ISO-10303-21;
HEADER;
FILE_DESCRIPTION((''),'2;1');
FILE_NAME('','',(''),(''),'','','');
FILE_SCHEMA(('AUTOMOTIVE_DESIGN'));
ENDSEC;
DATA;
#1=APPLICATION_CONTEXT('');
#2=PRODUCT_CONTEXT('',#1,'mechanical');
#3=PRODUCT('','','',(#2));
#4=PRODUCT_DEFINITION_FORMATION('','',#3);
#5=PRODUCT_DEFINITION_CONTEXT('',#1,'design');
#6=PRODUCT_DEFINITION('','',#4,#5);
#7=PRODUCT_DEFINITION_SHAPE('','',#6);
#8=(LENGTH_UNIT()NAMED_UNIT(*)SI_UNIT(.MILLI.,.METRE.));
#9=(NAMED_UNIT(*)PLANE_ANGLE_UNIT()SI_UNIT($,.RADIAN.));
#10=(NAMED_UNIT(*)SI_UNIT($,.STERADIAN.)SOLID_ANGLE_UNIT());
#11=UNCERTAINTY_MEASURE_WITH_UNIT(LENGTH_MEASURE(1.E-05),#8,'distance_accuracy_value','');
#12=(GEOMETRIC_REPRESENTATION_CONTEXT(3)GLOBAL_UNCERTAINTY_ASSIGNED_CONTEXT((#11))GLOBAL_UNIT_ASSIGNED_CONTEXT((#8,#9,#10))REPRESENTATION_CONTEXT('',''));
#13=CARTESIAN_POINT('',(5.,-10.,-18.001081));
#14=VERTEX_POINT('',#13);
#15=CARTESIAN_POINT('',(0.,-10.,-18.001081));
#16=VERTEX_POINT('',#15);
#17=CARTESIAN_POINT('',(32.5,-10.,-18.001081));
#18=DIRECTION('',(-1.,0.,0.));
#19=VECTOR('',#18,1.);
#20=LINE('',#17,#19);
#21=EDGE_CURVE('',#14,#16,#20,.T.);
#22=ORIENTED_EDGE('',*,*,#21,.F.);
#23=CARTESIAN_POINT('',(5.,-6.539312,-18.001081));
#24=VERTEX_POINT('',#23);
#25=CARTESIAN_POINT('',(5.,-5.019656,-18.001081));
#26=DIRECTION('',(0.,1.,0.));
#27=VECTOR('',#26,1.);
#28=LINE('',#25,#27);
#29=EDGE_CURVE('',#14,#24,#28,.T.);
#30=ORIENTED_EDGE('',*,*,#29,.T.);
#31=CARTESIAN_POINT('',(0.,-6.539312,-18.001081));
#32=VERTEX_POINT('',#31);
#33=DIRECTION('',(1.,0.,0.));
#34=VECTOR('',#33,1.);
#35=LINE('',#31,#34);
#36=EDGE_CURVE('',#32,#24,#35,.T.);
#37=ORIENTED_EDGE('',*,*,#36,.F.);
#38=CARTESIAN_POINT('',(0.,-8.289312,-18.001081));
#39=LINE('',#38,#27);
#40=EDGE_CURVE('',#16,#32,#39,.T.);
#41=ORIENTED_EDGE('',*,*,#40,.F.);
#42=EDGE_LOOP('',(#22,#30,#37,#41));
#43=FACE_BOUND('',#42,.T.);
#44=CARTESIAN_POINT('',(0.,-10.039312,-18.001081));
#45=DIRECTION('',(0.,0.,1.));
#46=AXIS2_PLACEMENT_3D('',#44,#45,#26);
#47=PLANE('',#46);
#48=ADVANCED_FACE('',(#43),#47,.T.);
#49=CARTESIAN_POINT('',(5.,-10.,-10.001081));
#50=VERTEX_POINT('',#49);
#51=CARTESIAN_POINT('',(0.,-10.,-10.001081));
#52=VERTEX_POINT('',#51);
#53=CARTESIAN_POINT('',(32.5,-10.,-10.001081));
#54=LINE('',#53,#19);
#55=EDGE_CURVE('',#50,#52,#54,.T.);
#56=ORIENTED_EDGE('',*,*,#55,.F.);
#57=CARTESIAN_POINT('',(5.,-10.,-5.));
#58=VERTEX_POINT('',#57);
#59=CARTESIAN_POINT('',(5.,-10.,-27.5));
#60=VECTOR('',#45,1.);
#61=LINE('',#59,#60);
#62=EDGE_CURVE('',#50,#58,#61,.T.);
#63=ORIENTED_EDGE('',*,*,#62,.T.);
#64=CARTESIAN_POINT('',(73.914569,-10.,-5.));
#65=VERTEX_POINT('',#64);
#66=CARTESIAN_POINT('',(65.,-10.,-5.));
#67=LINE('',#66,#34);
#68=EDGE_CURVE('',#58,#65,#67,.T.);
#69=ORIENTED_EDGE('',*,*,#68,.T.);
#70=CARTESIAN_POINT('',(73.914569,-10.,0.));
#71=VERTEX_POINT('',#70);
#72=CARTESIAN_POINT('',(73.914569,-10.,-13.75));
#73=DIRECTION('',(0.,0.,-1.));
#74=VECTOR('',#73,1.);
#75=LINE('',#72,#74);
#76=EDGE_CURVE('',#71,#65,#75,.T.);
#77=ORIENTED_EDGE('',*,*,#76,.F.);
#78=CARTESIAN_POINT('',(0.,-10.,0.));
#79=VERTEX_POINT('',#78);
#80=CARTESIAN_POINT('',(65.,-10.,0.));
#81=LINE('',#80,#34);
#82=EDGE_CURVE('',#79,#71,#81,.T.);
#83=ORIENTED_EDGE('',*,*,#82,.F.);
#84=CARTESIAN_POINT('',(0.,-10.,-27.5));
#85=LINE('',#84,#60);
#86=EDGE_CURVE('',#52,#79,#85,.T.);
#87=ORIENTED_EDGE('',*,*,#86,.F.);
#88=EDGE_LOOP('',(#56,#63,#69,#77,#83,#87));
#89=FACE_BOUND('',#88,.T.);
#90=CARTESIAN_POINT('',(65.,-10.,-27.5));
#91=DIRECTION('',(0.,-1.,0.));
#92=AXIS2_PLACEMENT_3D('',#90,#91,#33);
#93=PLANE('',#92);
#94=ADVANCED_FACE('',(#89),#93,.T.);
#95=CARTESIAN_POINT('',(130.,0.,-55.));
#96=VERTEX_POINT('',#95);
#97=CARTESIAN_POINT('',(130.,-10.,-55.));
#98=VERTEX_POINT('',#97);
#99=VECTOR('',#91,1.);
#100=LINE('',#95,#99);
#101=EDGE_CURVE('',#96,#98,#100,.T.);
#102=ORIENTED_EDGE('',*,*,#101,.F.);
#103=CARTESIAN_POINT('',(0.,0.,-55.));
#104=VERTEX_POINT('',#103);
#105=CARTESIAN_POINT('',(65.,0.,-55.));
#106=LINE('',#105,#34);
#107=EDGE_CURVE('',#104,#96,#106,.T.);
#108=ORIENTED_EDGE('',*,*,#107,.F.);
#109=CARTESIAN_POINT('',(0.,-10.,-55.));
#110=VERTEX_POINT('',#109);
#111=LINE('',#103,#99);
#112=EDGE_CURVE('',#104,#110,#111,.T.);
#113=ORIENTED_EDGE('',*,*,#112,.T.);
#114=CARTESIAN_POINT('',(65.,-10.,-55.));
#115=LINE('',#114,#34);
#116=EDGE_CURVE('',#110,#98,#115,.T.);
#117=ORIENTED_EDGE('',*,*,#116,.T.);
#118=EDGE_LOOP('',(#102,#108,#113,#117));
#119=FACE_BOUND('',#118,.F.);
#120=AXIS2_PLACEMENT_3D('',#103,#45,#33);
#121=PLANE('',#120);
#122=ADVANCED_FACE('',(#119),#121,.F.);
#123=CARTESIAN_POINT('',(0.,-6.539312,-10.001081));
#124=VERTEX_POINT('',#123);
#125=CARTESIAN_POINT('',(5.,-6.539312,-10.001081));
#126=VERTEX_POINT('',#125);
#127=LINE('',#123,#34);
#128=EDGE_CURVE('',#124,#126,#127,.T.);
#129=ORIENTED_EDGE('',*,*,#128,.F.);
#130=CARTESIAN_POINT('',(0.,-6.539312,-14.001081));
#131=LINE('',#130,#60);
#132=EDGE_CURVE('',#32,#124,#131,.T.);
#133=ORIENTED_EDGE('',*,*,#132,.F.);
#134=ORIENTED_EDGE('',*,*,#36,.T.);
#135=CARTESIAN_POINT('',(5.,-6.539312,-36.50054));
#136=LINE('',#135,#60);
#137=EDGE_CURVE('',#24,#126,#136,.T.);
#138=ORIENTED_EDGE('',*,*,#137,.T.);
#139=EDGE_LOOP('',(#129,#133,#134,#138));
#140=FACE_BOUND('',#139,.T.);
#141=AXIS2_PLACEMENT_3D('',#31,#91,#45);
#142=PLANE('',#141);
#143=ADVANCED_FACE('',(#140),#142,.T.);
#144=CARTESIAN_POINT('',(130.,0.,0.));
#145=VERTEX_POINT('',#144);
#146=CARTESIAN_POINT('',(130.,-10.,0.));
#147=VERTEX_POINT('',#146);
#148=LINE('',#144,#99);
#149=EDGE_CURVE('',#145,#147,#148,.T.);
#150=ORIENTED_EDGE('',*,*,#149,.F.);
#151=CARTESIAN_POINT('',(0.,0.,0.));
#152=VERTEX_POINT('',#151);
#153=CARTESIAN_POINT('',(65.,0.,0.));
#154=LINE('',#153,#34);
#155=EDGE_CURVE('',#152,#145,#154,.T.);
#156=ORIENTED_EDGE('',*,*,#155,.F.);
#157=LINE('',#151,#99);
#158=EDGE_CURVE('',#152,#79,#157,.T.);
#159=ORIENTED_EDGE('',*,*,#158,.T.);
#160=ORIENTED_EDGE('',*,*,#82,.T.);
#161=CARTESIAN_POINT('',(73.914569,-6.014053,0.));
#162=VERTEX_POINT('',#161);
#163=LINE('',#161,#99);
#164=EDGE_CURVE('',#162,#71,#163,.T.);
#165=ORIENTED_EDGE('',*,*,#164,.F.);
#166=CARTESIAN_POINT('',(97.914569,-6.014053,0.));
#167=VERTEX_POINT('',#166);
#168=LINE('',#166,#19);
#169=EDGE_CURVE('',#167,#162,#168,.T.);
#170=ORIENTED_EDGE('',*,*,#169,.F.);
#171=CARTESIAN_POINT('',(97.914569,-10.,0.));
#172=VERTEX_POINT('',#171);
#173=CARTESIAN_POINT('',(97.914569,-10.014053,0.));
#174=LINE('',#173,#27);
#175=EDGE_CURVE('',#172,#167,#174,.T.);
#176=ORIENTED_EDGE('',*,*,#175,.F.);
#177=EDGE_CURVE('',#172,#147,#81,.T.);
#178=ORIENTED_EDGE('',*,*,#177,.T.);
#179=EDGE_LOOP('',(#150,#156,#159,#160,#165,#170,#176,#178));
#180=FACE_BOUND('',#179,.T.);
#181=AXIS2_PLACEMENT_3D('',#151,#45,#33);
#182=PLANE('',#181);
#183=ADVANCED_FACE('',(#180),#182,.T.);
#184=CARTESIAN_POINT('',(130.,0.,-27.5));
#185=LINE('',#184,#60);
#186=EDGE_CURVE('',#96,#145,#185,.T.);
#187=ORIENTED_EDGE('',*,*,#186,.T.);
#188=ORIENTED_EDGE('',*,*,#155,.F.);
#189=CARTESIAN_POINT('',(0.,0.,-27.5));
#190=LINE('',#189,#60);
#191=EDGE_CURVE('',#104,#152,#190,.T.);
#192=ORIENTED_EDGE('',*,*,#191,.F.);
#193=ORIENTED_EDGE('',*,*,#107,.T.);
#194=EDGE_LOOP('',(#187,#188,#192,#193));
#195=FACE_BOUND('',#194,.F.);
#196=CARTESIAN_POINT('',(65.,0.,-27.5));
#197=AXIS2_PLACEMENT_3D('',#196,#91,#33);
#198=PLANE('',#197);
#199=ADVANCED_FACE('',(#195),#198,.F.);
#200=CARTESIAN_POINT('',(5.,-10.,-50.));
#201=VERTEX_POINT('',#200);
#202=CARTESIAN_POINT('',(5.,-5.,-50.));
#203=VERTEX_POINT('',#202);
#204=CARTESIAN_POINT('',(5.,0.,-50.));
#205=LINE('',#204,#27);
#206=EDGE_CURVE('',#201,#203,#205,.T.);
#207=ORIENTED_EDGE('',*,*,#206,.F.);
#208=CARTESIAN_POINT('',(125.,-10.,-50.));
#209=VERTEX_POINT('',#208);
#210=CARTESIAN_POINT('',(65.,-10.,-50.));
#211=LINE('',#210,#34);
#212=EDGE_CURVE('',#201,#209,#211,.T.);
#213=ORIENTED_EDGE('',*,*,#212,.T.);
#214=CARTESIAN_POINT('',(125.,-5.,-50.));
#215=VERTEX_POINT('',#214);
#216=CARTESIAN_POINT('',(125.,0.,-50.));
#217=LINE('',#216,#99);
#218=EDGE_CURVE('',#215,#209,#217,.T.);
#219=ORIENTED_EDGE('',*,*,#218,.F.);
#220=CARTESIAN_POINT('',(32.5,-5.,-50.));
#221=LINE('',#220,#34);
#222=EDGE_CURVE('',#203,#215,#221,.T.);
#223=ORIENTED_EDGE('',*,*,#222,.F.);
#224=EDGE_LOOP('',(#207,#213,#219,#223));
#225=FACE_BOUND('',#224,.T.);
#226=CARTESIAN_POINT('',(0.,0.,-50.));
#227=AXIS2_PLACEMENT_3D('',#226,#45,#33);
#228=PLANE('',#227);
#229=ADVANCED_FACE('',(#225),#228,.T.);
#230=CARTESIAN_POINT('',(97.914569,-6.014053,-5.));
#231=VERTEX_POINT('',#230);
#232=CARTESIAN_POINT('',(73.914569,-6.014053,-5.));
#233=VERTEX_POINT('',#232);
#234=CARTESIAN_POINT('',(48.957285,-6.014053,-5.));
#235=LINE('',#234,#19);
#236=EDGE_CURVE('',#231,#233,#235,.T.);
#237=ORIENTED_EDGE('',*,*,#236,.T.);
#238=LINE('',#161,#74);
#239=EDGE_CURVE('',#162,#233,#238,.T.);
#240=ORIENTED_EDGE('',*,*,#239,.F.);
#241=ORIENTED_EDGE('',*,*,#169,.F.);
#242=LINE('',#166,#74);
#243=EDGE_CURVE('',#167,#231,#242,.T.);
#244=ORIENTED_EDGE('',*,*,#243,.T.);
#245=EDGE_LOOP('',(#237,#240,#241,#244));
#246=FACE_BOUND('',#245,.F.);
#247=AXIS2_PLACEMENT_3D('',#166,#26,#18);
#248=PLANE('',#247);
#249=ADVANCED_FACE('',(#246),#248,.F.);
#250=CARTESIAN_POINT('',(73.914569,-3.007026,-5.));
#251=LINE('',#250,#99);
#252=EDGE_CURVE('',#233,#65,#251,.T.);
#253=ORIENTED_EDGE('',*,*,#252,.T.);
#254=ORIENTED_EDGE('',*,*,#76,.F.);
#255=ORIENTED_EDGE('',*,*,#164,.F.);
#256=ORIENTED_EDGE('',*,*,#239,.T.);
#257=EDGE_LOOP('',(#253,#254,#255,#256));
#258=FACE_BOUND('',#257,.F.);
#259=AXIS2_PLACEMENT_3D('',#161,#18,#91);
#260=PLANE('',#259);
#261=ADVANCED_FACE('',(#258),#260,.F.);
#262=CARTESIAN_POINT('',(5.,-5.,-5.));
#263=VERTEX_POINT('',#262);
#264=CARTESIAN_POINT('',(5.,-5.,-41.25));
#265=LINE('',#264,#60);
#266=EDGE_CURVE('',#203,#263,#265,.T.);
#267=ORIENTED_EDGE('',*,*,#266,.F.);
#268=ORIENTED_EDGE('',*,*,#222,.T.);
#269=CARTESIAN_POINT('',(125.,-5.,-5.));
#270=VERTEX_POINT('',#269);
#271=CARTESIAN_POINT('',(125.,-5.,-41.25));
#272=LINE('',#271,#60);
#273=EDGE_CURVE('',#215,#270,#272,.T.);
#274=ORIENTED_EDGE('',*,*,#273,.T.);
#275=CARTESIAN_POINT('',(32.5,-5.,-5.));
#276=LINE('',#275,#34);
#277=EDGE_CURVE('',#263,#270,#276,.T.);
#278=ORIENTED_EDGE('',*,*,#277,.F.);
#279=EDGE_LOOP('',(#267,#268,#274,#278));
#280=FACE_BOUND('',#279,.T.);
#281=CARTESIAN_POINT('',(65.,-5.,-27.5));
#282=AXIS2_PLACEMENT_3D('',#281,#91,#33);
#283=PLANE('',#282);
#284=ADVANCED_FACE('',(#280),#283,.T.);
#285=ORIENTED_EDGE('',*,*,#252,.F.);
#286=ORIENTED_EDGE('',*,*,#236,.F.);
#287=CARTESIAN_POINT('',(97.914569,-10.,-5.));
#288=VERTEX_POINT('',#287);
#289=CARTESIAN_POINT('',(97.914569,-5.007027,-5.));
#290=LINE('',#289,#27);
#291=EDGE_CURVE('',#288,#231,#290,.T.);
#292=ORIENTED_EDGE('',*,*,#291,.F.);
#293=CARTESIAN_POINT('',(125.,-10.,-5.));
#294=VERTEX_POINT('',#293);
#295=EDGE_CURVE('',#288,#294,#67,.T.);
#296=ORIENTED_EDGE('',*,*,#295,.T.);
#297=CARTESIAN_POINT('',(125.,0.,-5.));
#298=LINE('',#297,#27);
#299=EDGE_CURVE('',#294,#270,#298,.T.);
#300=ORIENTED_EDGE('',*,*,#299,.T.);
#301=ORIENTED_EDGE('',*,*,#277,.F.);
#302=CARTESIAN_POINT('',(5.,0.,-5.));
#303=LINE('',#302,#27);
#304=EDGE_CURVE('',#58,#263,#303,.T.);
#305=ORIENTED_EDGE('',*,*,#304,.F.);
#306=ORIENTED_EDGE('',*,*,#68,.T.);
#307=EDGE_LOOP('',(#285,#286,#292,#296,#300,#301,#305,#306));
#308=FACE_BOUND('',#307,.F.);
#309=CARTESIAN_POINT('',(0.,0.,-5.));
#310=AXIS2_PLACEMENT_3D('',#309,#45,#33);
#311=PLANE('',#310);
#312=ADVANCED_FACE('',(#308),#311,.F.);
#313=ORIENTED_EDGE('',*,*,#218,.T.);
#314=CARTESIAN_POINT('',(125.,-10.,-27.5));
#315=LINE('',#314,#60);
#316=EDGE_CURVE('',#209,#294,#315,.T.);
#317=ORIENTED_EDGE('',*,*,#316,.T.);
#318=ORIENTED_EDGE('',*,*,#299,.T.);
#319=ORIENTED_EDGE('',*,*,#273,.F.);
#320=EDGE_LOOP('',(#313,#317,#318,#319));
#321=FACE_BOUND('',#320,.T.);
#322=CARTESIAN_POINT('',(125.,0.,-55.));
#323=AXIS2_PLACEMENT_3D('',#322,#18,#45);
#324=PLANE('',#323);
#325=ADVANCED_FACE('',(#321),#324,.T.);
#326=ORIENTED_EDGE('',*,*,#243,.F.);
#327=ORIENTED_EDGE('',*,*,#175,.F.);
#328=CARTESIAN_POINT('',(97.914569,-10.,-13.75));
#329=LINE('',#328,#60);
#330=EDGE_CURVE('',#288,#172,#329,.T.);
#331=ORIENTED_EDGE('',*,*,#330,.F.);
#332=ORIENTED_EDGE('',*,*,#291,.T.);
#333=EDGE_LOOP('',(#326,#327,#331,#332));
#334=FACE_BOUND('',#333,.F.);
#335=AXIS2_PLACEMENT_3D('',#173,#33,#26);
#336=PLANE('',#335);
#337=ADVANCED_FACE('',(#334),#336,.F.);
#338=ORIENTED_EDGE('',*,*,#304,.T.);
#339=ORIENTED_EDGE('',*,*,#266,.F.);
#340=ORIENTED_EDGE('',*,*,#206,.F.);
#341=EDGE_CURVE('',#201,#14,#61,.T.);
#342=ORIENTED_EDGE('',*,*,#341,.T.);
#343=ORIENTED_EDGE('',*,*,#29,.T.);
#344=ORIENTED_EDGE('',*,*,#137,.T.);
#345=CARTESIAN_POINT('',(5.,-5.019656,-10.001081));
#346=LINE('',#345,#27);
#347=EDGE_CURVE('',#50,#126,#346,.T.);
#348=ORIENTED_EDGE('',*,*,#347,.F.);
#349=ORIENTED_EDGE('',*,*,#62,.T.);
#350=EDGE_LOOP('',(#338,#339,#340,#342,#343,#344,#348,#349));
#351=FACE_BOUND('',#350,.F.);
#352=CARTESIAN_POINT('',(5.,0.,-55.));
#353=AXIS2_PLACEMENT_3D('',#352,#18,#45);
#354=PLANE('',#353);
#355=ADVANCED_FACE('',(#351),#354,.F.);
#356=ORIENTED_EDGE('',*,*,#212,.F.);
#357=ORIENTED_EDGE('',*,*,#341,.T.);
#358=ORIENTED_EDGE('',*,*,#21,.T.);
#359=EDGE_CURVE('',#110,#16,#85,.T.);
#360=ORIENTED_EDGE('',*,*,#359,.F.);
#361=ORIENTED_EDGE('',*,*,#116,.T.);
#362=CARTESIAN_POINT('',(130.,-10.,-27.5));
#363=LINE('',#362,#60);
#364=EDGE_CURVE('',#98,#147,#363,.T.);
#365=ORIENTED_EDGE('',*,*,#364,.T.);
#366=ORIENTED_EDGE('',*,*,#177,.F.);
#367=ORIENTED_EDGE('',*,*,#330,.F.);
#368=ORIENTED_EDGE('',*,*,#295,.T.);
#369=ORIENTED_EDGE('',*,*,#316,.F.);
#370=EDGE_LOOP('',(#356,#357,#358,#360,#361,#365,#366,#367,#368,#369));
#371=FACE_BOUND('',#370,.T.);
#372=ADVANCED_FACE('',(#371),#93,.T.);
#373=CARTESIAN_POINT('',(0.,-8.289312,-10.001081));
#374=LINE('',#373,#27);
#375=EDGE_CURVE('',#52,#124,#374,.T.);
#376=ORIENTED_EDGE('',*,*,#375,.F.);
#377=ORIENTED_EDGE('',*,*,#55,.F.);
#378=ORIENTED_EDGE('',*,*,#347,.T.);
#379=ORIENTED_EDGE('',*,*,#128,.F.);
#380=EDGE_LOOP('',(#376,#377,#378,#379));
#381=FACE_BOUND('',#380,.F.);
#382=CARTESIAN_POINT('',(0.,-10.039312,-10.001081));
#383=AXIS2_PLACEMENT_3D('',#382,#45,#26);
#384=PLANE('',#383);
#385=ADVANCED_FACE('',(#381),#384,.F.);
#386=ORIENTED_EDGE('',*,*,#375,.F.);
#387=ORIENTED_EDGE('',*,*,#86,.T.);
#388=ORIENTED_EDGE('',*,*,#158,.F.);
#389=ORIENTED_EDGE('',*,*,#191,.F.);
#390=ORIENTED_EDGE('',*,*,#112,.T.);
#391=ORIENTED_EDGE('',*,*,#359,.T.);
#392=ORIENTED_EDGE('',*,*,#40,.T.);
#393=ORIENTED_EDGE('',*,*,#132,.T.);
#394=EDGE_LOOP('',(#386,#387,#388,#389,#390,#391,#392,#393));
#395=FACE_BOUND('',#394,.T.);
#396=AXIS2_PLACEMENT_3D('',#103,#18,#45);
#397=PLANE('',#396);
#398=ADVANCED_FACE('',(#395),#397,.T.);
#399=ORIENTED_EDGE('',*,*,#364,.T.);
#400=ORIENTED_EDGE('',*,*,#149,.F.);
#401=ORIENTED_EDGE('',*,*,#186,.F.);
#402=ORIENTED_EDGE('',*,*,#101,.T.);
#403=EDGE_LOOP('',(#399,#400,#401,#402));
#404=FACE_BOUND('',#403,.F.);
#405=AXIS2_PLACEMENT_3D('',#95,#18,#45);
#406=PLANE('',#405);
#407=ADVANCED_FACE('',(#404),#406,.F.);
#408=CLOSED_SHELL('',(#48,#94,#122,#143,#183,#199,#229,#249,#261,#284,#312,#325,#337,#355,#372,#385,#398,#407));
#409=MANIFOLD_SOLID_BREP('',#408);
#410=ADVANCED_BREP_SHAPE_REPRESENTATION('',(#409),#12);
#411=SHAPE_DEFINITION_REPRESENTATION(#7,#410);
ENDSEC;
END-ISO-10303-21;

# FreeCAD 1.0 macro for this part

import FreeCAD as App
import Part
import Sketcher
from FreeCAD import Vector
Q = App.Units.Quantity


def faces_at(feature, points):
    """Names of the faces that lie closest to the given points."""
    faces = feature.Shape.Faces
    near = lambda p: min(range(len(faces)), key=lambda i: faces[i].distToShape(Part.Vertex(*p))[0])
    return sorted({f"Face{near(p) + 1}" for p in points})

doc = App.newDocument("Part")
body = doc.addObject("PartDesign::Body", "Body")

# Sketch on XZ plane
sketch1 = body.newObject("Sketcher::SketchObject", "Sketch")
sketch1.AttachmentSupport = (doc.getObject("XZ_Plane"), [""])
sketch1.MapMode = "FlatFace"
sketch1.addGeometry(Part.LineSegment(Vector(0, 0, 0), Vector(0, -55, 0)), False)
sketch1.addGeometry(Part.LineSegment(Vector(0, -55, 0), Vector(130, -55, 0)), False)
sketch1.addGeometry(Part.LineSegment(Vector(130, -55, 0), Vector(130, 0, 0)), False)
sketch1.addGeometry(Part.LineSegment(Vector(130, 0, 0), Vector(0, 0, 0)), False)
sketch1.addConstraint(Sketcher.Constraint("Coincident", 0, 2, 1, 1))
sketch1.addConstraint(Sketcher.Constraint("Coincident", 1, 2, 2, 1))
sketch1.addConstraint(Sketcher.Constraint("Coincident", 2, 2, 3, 1))
sketch1.addConstraint(Sketcher.Constraint("Coincident", 3, 2, 0, 1))
sketch1.addConstraint(Sketcher.Constraint("Vertical", 0))
sketch1.addConstraint(Sketcher.Constraint("Horizontal", 1))
sketch1.addConstraint(Sketcher.Constraint("Vertical", 2))
sketch1.addConstraint(Sketcher.Constraint("Horizontal", 3))
sketch1.addConstraint(Sketcher.Constraint("Coincident", 3, 2, -1, 1))
sketch1.addConstraint(Sketcher.Constraint("DistanceX", 1, 1, 1, 2, Q("130 mm")))
sketch1.addConstraint(Sketcher.Constraint("DistanceY", 0, 2, 0, 1, Q("55 mm")))
pad1 = body.newObject("PartDesign::Pad", "Pad")
pad1.Profile = sketch1
pad1.Length = 10
doc.recompute()

thickness = body.newObject("PartDesign::Thickness", "Thickness")
thickness.Base = (pad1, faces_at(pad1, [(65, -10, -27.5)]))
thickness.Value = 5
thickness.Reversed = True
thickness.Join = "Arc"

# Sketch on XY plane
sketch2 = body.newObject("Sketcher::SketchObject", "Sketch001")
sketch2.AttachmentSupport = (doc.getObject("XY_Plane"), [""])
sketch2.MapMode = "FlatFace"
sketch2.addGeometry(Part.LineSegment(Vector(73.914569, -6.014053, 0), Vector(73.914569, -10.014053, 0)), False)
sketch2.addGeometry(Part.LineSegment(Vector(73.914569, -10.014053, 0), Vector(97.914569, -10.014053, 0)), False)
sketch2.addGeometry(Part.LineSegment(Vector(97.914569, -10.014053, 0), Vector(97.914569, -6.014053, 0)), False)
sketch2.addGeometry(Part.LineSegment(Vector(97.914569, -6.014053, 0), Vector(73.914569, -6.014053, 0)), False)
sketch2.addConstraint(Sketcher.Constraint("Coincident", 0, 2, 1, 1))
sketch2.addConstraint(Sketcher.Constraint("Coincident", 1, 2, 2, 1))
sketch2.addConstraint(Sketcher.Constraint("Coincident", 2, 2, 3, 1))
sketch2.addConstraint(Sketcher.Constraint("Coincident", 3, 2, 0, 1))
sketch2.addConstraint(Sketcher.Constraint("Vertical", 0))
sketch2.addConstraint(Sketcher.Constraint("Horizontal", 1))
sketch2.addConstraint(Sketcher.Constraint("Vertical", 2))
sketch2.addConstraint(Sketcher.Constraint("Horizontal", 3))
sketch2.addConstraint(Sketcher.Constraint("DistanceX", 1, 1, 1, 2, Q("24 mm")))
sketch2.addConstraint(Sketcher.Constraint("DistanceY", 0, 2, 0, 1, Q("4 mm")))
sketch2.addConstraint(Sketcher.Constraint("DistanceX", -1, 1, 0, 2, Q("73.914569 mm")))
sketch2.addConstraint(Sketcher.Constraint("DistanceY", 0, 2, -1, 1, Q("10.014053 mm")))
pocket1 = body.newObject("PartDesign::Pocket", "Pocket")
pocket1.Profile = sketch2
pocket1.Length = 11.684

# Sketch on YZ plane
sketch3 = body.newObject("Sketcher::SketchObject", "Sketch002")
sketch3.AttachmentSupport = (doc.getObject("YZ_Plane"), [""])
sketch3.MapMode = "FlatFace"
sketch3.addGeometry(Part.LineSegment(Vector(-10.039312, -10.001081, 0), Vector(-10.039312, -18.001081, 0)), False)
sketch3.addGeometry(Part.LineSegment(Vector(-10.039312, -18.001081, 0), Vector(-6.539312, -18.001081, 0)), False)
sketch3.addGeometry(Part.LineSegment(Vector(-6.539312, -18.001081, 0), Vector(-6.539312, -10.001081, 0)), False)
sketch3.addGeometry(Part.LineSegment(Vector(-6.539312, -10.001081, 0), Vector(-10.039312, -10.001081, 0)), False)
sketch3.addConstraint(Sketcher.Constraint("Coincident", 0, 2, 1, 1))
sketch3.addConstraint(Sketcher.Constraint("Coincident", 1, 2, 2, 1))
sketch3.addConstraint(Sketcher.Constraint("Coincident", 2, 2, 3, 1))
sketch3.addConstraint(Sketcher.Constraint("Coincident", 3, 2, 0, 1))
sketch3.addConstraint(Sketcher.Constraint("Vertical", 0))
sketch3.addConstraint(Sketcher.Constraint("Horizontal", 1))
sketch3.addConstraint(Sketcher.Constraint("Vertical", 2))
sketch3.addConstraint(Sketcher.Constraint("Horizontal", 3))
sketch3.addConstraint(Sketcher.Constraint("DistanceY", 0, 2, 0, 1, Q("8 mm")))
sketch3.addConstraint(Sketcher.Constraint("DistanceX", 1, 1, 1, 2, Q("3.5 mm")))
sketch3.addConstraint(Sketcher.Constraint("DistanceY", 0, 2, -1, 1, Q("18.001081 mm")))
sketch3.addConstraint(Sketcher.Constraint("DistanceX", 1, 2, -1, 1, Q("6.539312 mm")))
pocket2 = body.newObject("PartDesign::Pocket", "Pocket001")
pocket2.Profile = sketch3
pocket2.Length = 6.7818
pocket2.Reversed = True

doc.recompute()
